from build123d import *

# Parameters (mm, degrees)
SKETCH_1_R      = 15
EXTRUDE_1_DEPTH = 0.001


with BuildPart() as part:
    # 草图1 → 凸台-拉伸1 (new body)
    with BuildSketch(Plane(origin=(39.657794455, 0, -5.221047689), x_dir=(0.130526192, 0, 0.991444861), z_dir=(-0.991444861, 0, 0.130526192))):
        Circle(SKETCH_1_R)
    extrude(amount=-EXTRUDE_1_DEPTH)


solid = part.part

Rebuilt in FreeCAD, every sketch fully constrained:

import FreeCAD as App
import Part
import Sketcher

doc = App.newDocument("Part")
body = doc.addObject("PartDesign::Body", "Body")

# Sketch on an angled plane
sketch1 = body.newObject("Sketcher::SketchObject", "Sketch")
sketch1.Placement = App.Placement(App.Vector(39.657794, 0, -5.221048), App.Rotation(App.Vector(0.130526192, 0, 0.991444861), App.Vector(0, 0.999999999, 0), App.Vector(-0.991444861, 0, 0.130526192), "ZXY"))
sketch1.addGeometry(Part.Circle(App.Vector(0, 0, 0), App.Vector(0, 0, 1), 15), False)
sketch1.addConstraint(Sketcher.Constraint("Coincident", 0, 3, -1, 1))
sketch1.addConstraint(Sketcher.Constraint("Diameter", 0, 30.0))
pad1 = body.newObject("PartDesign::Pad", "Pad")
pad1.Profile = sketch1
pad1.Length = 0.001
pad1.Reversed = True

doc.recompute()
